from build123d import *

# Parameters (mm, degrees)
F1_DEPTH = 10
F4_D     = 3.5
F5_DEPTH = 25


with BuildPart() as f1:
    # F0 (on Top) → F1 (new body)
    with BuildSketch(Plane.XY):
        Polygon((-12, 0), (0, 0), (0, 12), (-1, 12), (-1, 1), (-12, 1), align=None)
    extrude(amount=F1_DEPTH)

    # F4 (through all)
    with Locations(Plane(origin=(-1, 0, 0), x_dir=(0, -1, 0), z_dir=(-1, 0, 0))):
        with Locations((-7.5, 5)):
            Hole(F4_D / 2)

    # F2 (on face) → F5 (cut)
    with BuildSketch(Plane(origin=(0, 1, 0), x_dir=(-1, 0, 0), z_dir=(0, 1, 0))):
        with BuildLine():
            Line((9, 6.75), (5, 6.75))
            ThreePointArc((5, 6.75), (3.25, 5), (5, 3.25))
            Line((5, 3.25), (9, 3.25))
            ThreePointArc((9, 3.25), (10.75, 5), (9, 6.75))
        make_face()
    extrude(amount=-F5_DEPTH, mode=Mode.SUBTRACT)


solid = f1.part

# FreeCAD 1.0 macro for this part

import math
import FreeCAD as App
import Part
import Sketcher
from FreeCAD import Vector

doc = App.newDocument("Part")
body = doc.addObject("PartDesign::Body", "Body")

# Sketch on XY plane
sketch1 = body.newObject("Sketcher::SketchObject", "Sketch")
sketch1.AttachmentSupport = (doc.getObject("XY_Plane"), [""])
sketch1.MapMode = "FlatFace"
sketch1.addGeometry([
    Part.LineSegment(Vector(-12, 0, 0), Vector(0, 0, 0)),  # 0
    Part.LineSegment(Vector(0, 0, 0), Vector(0, 12, 0)),  # 1
    Part.LineSegment(Vector(0, 12, 0), Vector(-1, 12, 0)),  # 2
    Part.LineSegment(Vector(-1, 12, 0), Vector(-1, 1, 0)),  # 3
    Part.LineSegment(Vector(-1, 1, 0), Vector(-12, 1, 0)),  # 4
    Part.LineSegment(Vector(-12, 1, 0), Vector(-12, 0, 0)),  # 5
], False)
sketch1.addConstraint([
    Sketcher.Constraint("Coincident", 0, 2, 1, 1),
    Sketcher.Constraint("Coincident", 1, 2, 2, 1),
    Sketcher.Constraint("Coincident", 2, 2, 3, 1),
    Sketcher.Constraint("Coincident", 3, 2, 4, 1),
    Sketcher.Constraint("Coincident", 4, 2, 5, 1),
    Sketcher.Constraint("Coincident", 5, 2, 0, 1),
    Sketcher.Constraint("Horizontal", 0),
    Sketcher.Constraint("Vertical", 1),
    Sketcher.Constraint("Horizontal", 2),
    Sketcher.Constraint("Vertical", 3),
    Sketcher.Constraint("Horizontal", 4),
    Sketcher.Constraint("Vertical", 5),
    Sketcher.Constraint("Coincident", 0, 2, -1, 1),
    Sketcher.Constraint("Equal", 0, 1),
    Sketcher.Constraint("Equal", 4, 3),
    Sketcher.Constraint("DistanceX", 0, 1, 0, 2, 12.0),
    Sketcher.Constraint("DistanceX", 2, 2, 2, 1, 1.0),
])
pad1 = body.newObject("PartDesign::Pad", "Pad")
pad1.Profile = sketch1
pad1.Length = 10

# Sketch on YZ plane
sketch2 = body.newObject("Sketcher::SketchObject", "Sketch001")
sketch2.AttachmentSupport = (doc.getObject("YZ_Plane"), [""])
sketch2.MapMode = "FlatFace"
sketch2.AttachmentOffset = App.Placement(Vector(0, 0, -1), App.Rotation())
sketch2.addGeometry(Part.Circle(Vector(7.5, 5, 0), Vector(0, 0, 1), 1.8), False)
sketch2.addConstraint([
    Sketcher.Constraint("Diameter", 0, 3.5),
    Sketcher.Constraint("DistanceY", -1, 1, 0, 3, 5.0),
    Sketcher.Constraint("DistanceX", -1, 1, 0, 3, 7.5),
])
doc.recompute()
hole = body.newObject("PartDesign::Hole", "Hole")
hole.Profile = sketch2
hole.ThreadType = "None"
hole.Diameter = 3.5
hole.DepthType = "ThroughAll"
hole.Reversed = True

# Sketch on XZ plane
sketch3 = body.newObject("Sketcher::SketchObject", "Sketch002")
sketch3.AttachmentSupport = (doc.getObject("XZ_Plane"), [""])
sketch3.MapMode = "FlatFace"
sketch3.AttachmentOffset = App.Placement(Vector(0, 0, -1), App.Rotation())
sketch3.addGeometry([
    Part.LineSegment(Vector(-9, 6.8, 0), Vector(-5, 6.8, 0)),
    Part.ArcOfCircle(Part.Circle(Vector(-5, 5, 0), Vector(0, 0, 1), 1.8), math.radians(-90), math.radians(90)),
    Part.LineSegment(Vector(-5, 3.2, 0), Vector(-9, 3.2, 0)),
    Part.ArcOfCircle(Part.Circle(Vector(-9, 5, 0), Vector(0, 0, 1), 1.8), math.radians(90), math.radians(270)),
], False)
sketch3.addConstraint([
    Sketcher.Constraint("Tangent", 0, 2, 1, 2),
    Sketcher.Constraint("Tangent", 1, 1, 2, 1),
    Sketcher.Constraint("Tangent", 2, 2, 3, 2),
    Sketcher.Constraint("Tangent", 3, 1, 0, 1),
    Sketcher.Constraint("Horizontal", 0),
    Sketcher.Constraint("Horizontal", 2),
    Sketcher.Constraint("DistanceX", 0, 1, 0, 2, 4.0),
    Sketcher.Constraint("Radius", 1, 1.75),
    Sketcher.Constraint("DistanceX", 1, 3, -1, 1, 5.0),
    Sketcher.Constraint("DistanceY", -1, 1, 1, 3, 5.0),
])
pocket1 = body.newObject("PartDesign::Pocket", "Pocket")
pocket1.Profile = sketch3
pocket1.Length = 25
pocket1.Reversed = True

doc.recompute()
